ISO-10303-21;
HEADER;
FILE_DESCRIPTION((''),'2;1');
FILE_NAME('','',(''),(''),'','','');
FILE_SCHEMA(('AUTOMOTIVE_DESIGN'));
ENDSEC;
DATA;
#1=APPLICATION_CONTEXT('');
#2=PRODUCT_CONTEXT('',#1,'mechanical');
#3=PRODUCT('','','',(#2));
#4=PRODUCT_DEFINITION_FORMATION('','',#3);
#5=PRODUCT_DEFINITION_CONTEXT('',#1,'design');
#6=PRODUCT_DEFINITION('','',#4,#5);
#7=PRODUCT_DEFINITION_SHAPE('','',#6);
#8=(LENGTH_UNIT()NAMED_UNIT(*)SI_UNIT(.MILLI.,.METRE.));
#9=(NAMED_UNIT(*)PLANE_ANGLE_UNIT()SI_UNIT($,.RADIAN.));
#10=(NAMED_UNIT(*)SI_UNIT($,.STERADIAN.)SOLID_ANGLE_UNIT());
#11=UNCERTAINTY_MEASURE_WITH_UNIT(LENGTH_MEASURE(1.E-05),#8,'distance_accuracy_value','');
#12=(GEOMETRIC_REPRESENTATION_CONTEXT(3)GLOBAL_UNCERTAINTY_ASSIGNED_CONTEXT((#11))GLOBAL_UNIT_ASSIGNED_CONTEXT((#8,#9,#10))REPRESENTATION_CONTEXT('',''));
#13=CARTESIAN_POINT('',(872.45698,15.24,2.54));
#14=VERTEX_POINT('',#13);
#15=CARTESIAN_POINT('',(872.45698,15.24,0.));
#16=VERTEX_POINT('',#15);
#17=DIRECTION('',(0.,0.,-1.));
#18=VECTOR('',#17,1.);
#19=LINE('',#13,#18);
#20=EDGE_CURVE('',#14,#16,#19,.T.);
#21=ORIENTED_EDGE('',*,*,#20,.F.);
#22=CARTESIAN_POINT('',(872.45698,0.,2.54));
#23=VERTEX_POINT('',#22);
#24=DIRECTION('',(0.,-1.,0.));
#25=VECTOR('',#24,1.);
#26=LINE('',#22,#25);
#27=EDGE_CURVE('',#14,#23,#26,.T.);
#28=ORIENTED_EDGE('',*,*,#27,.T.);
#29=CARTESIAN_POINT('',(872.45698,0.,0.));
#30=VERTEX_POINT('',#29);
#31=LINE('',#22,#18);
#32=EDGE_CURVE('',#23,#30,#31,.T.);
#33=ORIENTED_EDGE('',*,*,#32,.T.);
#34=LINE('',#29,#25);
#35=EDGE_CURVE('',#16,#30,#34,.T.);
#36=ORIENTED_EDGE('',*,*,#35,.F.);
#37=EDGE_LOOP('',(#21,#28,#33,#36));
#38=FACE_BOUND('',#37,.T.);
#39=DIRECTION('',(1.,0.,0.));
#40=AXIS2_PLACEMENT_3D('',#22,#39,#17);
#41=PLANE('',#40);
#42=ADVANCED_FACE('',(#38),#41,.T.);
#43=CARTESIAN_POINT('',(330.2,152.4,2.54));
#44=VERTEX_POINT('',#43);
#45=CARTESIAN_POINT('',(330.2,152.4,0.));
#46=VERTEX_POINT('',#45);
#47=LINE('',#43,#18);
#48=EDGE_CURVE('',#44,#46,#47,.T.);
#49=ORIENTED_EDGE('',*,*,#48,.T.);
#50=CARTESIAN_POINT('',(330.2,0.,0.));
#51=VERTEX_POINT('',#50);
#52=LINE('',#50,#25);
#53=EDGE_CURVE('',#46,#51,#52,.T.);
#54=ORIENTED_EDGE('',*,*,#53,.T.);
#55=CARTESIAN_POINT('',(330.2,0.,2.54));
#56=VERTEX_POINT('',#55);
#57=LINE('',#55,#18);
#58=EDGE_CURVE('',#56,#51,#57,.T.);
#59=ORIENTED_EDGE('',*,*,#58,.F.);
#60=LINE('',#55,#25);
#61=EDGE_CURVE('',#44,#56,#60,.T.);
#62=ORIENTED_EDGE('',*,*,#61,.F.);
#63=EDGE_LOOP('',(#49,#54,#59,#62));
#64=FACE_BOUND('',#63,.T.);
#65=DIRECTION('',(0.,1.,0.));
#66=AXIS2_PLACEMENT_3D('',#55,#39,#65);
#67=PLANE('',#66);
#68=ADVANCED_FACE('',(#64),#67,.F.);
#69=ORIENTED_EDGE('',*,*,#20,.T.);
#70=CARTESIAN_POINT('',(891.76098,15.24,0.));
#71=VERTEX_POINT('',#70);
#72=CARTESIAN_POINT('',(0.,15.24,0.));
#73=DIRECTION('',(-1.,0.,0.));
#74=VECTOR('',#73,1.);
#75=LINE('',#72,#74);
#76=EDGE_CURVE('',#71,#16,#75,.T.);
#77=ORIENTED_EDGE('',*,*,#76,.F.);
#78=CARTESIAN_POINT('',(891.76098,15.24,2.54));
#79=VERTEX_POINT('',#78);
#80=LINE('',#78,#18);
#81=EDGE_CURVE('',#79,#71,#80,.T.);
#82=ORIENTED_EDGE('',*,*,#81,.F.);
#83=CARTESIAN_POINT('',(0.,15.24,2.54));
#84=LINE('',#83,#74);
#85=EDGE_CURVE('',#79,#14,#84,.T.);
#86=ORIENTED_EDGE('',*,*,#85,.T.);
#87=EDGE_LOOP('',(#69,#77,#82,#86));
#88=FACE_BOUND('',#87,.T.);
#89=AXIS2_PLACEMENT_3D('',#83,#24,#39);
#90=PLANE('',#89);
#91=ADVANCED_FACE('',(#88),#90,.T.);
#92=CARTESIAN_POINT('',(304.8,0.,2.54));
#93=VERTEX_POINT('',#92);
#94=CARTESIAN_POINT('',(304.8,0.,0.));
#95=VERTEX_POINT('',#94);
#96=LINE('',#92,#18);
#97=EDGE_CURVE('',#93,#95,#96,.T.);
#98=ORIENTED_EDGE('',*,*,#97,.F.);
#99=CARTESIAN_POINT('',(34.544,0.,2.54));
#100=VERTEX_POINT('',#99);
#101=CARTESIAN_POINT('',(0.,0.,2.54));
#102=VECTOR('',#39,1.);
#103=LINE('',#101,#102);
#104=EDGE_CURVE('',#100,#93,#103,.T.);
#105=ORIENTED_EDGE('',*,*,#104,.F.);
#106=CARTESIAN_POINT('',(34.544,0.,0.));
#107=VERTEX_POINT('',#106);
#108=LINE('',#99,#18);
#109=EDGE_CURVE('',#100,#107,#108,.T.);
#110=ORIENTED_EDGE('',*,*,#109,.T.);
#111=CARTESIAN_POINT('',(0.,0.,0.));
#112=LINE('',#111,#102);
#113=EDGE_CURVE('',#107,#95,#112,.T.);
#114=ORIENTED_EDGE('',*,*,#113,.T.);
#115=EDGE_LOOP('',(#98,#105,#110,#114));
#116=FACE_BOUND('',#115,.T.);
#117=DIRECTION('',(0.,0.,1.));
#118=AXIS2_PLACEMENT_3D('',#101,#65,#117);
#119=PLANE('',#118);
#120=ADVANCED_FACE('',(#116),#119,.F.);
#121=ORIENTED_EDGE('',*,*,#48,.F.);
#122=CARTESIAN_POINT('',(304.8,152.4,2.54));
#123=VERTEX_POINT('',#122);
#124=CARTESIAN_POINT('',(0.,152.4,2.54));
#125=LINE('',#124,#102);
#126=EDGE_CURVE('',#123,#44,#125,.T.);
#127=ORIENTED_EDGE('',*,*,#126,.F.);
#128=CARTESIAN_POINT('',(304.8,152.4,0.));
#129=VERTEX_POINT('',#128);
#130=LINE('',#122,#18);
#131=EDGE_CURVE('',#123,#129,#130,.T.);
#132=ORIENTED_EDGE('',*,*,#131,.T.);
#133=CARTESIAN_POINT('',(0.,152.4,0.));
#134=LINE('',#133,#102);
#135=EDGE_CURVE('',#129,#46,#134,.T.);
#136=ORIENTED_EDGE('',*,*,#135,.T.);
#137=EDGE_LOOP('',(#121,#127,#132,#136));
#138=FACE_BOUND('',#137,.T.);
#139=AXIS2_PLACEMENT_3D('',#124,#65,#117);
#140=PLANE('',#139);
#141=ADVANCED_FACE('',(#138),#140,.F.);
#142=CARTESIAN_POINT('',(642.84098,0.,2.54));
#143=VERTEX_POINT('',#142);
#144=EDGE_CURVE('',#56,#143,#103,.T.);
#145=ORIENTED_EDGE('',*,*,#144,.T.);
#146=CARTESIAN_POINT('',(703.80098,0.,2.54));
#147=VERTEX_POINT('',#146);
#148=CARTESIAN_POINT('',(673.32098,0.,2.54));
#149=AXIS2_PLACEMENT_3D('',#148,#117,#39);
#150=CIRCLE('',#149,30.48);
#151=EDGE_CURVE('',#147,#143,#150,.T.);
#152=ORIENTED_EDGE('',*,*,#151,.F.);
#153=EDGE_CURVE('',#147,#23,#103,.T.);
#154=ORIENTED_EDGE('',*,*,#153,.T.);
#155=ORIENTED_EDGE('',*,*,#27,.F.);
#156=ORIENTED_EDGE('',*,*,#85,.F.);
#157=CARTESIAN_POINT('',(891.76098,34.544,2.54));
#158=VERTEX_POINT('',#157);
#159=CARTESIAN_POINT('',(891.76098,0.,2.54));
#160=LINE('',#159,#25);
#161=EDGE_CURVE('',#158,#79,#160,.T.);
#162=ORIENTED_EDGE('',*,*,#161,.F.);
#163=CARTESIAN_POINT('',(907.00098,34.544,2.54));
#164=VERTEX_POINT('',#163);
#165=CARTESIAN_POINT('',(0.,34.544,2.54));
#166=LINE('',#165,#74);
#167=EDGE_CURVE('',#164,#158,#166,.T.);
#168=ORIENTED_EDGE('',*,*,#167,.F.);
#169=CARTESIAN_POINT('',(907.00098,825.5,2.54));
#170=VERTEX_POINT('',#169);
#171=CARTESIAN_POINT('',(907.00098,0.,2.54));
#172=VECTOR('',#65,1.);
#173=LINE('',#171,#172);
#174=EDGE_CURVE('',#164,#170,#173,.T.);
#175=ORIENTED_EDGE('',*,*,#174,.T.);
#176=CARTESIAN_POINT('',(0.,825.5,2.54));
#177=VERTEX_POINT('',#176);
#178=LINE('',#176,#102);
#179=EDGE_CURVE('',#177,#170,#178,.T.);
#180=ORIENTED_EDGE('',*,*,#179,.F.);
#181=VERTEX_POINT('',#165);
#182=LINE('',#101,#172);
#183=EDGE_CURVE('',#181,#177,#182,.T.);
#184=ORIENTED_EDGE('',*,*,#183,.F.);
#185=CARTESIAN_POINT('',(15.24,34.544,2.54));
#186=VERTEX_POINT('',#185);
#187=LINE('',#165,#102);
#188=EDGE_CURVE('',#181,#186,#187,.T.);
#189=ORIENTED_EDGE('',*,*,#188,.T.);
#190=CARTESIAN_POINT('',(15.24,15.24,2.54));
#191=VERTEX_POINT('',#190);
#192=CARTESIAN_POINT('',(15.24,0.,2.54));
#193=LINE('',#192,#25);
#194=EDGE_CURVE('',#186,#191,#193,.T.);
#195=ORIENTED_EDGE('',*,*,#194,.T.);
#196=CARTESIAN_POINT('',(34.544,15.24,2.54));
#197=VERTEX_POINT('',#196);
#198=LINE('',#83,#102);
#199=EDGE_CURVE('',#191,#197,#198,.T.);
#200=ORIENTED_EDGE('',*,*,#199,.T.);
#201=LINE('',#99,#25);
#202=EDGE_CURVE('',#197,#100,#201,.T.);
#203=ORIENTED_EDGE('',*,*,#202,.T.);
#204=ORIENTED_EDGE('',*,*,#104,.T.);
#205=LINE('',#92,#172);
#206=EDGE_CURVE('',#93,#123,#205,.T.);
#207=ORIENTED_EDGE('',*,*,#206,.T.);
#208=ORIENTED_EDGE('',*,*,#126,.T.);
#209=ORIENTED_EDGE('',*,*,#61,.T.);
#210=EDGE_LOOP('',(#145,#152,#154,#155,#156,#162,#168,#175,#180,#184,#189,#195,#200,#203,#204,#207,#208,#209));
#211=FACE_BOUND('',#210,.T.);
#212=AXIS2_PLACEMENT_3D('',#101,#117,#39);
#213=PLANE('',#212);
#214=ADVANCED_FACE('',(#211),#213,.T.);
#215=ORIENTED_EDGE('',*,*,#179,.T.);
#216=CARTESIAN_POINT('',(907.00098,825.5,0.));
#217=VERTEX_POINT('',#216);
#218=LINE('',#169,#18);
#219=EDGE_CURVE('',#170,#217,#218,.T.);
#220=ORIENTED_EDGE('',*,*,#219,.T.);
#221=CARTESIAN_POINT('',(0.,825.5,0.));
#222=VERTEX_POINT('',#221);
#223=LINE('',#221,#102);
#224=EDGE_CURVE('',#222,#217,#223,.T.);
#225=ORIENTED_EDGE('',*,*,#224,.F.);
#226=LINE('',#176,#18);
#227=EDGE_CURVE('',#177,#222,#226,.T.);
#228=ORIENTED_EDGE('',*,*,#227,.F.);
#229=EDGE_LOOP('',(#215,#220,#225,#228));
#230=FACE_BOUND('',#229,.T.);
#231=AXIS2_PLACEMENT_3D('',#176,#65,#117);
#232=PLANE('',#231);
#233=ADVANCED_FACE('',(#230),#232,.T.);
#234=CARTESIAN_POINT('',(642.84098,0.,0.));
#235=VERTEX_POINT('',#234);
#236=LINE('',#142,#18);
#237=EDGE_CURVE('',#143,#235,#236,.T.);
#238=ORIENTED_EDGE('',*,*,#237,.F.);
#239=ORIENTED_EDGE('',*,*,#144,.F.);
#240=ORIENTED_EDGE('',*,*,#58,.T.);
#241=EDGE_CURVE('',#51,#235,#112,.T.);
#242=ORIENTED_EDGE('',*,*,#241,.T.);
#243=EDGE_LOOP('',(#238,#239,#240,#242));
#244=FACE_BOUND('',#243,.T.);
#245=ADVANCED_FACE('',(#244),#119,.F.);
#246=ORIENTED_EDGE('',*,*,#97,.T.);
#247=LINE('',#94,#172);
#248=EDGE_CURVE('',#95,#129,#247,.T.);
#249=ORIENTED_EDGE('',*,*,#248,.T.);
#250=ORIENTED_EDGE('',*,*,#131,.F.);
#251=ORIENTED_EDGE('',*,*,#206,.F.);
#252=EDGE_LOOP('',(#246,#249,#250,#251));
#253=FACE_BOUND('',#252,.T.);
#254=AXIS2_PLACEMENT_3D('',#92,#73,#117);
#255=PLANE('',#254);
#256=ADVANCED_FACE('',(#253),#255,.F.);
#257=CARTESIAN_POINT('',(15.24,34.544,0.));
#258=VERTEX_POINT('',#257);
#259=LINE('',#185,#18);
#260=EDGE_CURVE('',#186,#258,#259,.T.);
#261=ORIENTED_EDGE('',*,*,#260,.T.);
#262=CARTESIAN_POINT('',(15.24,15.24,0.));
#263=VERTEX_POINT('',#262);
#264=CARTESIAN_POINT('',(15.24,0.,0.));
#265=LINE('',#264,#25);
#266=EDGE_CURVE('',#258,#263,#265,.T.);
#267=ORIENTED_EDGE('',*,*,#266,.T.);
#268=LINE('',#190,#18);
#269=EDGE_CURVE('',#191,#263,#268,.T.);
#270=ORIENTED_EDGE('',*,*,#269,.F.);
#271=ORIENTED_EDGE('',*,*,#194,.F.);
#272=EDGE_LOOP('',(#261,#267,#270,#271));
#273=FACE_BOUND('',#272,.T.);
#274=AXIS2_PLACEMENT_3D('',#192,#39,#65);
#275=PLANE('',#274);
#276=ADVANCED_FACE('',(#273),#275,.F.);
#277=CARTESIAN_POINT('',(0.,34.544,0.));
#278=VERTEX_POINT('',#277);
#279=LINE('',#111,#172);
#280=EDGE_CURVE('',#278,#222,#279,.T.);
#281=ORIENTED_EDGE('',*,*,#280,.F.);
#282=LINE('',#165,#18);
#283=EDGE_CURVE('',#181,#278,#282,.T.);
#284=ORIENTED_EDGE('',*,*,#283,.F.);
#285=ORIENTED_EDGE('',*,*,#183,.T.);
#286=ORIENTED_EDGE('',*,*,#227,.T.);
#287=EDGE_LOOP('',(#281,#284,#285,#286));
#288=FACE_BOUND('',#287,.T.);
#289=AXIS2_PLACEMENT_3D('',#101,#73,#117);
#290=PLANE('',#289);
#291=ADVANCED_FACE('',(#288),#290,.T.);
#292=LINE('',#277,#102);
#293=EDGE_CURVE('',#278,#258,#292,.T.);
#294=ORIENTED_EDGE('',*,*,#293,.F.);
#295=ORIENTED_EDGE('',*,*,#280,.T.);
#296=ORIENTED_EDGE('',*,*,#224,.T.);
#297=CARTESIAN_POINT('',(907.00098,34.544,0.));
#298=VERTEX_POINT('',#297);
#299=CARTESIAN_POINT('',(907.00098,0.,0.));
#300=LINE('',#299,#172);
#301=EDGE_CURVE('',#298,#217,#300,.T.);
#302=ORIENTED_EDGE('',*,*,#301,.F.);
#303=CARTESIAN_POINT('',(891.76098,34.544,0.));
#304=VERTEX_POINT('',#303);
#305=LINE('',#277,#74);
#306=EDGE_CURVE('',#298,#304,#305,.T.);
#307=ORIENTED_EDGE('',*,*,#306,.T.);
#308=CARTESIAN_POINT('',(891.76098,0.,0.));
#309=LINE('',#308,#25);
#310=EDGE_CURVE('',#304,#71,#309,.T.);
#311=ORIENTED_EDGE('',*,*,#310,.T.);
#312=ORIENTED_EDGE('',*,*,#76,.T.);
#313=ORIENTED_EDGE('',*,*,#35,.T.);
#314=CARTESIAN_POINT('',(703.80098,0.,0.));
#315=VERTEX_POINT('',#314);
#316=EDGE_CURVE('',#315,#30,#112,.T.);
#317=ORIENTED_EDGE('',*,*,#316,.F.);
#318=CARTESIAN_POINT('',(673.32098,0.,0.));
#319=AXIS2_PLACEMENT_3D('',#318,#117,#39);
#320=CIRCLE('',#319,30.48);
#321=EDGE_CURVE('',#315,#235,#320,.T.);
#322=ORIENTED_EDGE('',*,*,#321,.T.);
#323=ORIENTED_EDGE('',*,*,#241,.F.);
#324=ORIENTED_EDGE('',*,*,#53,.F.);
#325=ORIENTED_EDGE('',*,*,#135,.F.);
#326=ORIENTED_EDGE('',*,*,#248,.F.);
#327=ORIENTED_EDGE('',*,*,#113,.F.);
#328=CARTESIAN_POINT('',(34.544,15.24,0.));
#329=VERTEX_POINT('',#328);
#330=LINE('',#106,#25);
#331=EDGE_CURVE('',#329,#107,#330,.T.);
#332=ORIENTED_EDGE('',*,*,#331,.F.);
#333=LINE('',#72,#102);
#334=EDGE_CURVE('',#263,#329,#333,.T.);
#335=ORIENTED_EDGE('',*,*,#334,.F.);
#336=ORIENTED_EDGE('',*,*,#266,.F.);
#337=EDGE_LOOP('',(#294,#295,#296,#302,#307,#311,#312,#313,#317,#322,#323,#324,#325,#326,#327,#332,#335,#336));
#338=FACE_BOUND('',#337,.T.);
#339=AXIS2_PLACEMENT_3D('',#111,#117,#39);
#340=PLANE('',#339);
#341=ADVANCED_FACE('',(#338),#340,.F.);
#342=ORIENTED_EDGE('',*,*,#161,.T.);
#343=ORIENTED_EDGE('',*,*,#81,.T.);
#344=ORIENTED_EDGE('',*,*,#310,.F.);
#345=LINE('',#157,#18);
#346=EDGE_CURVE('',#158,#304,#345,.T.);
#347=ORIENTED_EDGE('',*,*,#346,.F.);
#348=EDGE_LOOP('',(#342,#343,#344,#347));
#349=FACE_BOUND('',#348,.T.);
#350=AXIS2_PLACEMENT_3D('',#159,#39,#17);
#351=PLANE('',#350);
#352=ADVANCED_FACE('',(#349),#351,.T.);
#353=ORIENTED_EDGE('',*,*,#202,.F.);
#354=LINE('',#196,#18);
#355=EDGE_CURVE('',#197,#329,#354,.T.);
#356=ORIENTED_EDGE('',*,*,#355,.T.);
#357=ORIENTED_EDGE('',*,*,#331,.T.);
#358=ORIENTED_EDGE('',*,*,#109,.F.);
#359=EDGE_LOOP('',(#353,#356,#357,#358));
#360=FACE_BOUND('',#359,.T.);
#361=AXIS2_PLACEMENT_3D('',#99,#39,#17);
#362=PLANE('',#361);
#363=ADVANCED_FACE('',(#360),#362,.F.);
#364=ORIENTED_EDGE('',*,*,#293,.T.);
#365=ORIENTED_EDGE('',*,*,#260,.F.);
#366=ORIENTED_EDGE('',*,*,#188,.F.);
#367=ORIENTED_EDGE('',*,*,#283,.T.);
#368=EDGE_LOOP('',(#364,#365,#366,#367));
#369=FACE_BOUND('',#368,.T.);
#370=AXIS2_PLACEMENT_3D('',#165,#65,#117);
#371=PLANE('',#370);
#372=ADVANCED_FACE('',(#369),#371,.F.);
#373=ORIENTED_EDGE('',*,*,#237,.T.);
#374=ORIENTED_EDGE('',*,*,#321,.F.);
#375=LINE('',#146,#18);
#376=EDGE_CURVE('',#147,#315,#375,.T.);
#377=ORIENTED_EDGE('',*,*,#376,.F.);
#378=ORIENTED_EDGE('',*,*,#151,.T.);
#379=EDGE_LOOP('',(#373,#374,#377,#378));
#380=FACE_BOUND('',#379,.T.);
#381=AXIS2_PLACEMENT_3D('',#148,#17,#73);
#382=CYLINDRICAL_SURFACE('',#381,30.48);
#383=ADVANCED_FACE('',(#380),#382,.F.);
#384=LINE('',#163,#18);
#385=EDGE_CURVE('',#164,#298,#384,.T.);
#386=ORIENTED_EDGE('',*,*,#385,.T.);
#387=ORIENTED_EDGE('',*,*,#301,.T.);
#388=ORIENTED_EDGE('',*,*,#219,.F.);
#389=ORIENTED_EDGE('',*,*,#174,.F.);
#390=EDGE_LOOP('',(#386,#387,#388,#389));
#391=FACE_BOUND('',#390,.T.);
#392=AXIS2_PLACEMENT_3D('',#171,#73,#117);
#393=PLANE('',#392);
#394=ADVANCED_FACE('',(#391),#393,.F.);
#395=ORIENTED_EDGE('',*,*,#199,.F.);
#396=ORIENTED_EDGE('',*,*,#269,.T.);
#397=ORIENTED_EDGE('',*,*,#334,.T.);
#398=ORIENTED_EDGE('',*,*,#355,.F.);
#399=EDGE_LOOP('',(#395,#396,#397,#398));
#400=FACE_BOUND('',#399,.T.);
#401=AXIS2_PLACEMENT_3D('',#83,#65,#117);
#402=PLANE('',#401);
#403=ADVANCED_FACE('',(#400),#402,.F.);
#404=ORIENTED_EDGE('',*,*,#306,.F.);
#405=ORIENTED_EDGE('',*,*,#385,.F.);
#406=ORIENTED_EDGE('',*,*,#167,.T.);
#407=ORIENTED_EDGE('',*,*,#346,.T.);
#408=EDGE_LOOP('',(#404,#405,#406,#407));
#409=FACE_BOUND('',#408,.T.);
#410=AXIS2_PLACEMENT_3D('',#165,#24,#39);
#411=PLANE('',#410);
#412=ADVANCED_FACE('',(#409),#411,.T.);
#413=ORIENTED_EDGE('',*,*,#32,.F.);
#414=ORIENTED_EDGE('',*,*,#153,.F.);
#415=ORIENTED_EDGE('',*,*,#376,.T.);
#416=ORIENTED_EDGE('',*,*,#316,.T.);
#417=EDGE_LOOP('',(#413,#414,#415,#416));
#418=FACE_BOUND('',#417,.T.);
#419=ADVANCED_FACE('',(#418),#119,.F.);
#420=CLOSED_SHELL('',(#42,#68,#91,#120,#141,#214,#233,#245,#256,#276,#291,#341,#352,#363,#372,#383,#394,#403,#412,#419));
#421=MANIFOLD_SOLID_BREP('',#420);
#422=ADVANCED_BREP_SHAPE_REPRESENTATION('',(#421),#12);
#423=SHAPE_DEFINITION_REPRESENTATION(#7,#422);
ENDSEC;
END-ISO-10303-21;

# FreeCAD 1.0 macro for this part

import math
import FreeCAD as App
import Part
import Sketcher
Q = App.Units.Quantity

doc = App.newDocument("Part")
params = doc.addObject("Spreadsheet::Sheet", "Params")
for row, (alias, value) in enumerate([
    ("sketch1_radius", "1.2 in"),
    ("sketch1_width", "1 in"),
    ("sketch1_height", "6 in"),
    ("sketch1_width2", "0.6 in"),
    ("sketch1_width3", "0.76 in"),
    ("pad1_length", "0.1 in"),
], start=1):
    params.set(f"A{row}", alias)
    params.set(f"B{row}", "=" + value)
    params.setAlias(f"B{row}", alias)

body = doc.addObject("PartDesign::Body", "Body")

sketch1 = doc.addObject("Sketcher::SketchObject", "Sketch")
body.addObject(sketch1)
sketch1.AttachmentSupport = (doc.XY_Plane, [""])
sketch1.MapMode = "FlatFace"
sketch1.addGeometry([
    Part.LineSegment(App.Vector(0, 826, 0), App.Vector(0, 35, 0)),
    Part.LineSegment(App.Vector(0, 35, 0), App.Vector(15, 35, 0)),
    Part.LineSegment(App.Vector(15, 35, 0), App.Vector(15, 15, 0)),
    Part.LineSegment(App.Vector(15, 15, 0), App.Vector(35, 15, 0)),
    Part.LineSegment(App.Vector(35, 15, 0), App.Vector(35, 0, 0)),
    Part.LineSegment(App.Vector(35, 0, 0), App.Vector(305, 0, 0)),
    Part.LineSegment(App.Vector(305, 0, 0), App.Vector(305, 152, 0)),
    Part.LineSegment(App.Vector(305, 152, 0), App.Vector(330, 152, 0)),
    Part.LineSegment(App.Vector(330, 152, 0), App.Vector(330, 0, 0)),
    Part.LineSegment(App.Vector(330, 0, 0), App.Vector(643, 0, 0)),
    Part.ArcOfCircle(Part.Circle(App.Vector(673, 0, 0), App.Vector(0, 0, 1), 30), math.radians(0), math.radians(180)),
    Part.LineSegment(App.Vector(704, 0, 0), App.Vector(872, 0, 0)),
    Part.LineSegment(App.Vector(872, 0, 0), App.Vector(872, 15, 0)),
    Part.LineSegment(App.Vector(872, 15, 0), App.Vector(892, 15, 0)),
    Part.LineSegment(App.Vector(892, 15, 0), App.Vector(892, 35, 0)),
    Part.LineSegment(App.Vector(892, 35, 0), App.Vector(907, 35, 0)),
    Part.LineSegment(App.Vector(907, 35, 0), App.Vector(907, 826, 0)),
    Part.LineSegment(App.Vector(907, 826, 0), App.Vector(0, 826, 0)),
], False)
sketch1.addConstraint([
    Sketcher.Constraint("Coincident", 0, 2, 1, 1),
    Sketcher.Constraint("Coincident", 1, 2, 2, 1),
    Sketcher.Constraint("Coincident", 2, 2, 3, 1),
    Sketcher.Constraint("Coincident", 3, 2, 4, 1),
    Sketcher.Constraint("Coincident", 4, 2, 5, 1),
    Sketcher.Constraint("Coincident", 5, 2, 6, 1),
    Sketcher.Constraint("Coincident", 6, 2, 7, 1),
    Sketcher.Constraint("Coincident", 7, 2, 8, 1),
    Sketcher.Constraint("Coincident", 8, 2, 9, 1),
    Sketcher.Constraint("Coincident", 9, 2, 10, 2),
    Sketcher.Constraint("Coincident", 10, 1, 11, 1),
    Sketcher.Constraint("Coincident", 11, 2, 12, 1),
    Sketcher.Constraint("Coincident", 12, 2, 13, 1),
    Sketcher.Constraint("Coincident", 13, 2, 14, 1),
    Sketcher.Constraint("Coincident", 14, 2, 15, 1),
    Sketcher.Constraint("Coincident", 15, 2, 16, 1),
    Sketcher.Constraint("Coincident", 16, 2, 17, 1),
    Sketcher.Constraint("Coincident", 17, 2, 0, 1),
    Sketcher.Constraint("Vertical", 0),
    Sketcher.Constraint("Horizontal", 1),
    Sketcher.Constraint("Vertical", 2),
    Sketcher.Constraint("Horizontal", 3),
    Sketcher.Constraint("Vertical", 4),
    Sketcher.Constraint("Horizontal", 5),
    Sketcher.Constraint("Vertical", 6),
    Sketcher.Constraint("Horizontal", 7),
    Sketcher.Constraint("Vertical", 8),
    Sketcher.Constraint("Horizontal", 9),
    Sketcher.Constraint("Horizontal", 11),
    Sketcher.Constraint("Vertical", 12),
    Sketcher.Constraint("Horizontal", 13),
    Sketcher.Constraint("Vertical", 14),
    Sketcher.Constraint("Horizontal", 15),
    Sketcher.Constraint("Vertical", 16),
    Sketcher.Constraint("Horizontal", 17),
    Sketcher.Constraint("PointOnObject", 10, 3, -1),
    Sketcher.Constraint("PointOnObject", 0, 2, -2),
    Sketcher.Constraint("PointOnObject", 4, 2, -1),
    Sketcher.Constraint("PointOnObject", 8, 2, -1),
    Sketcher.Constraint("PointOnObject", 10, 1, -1),
    Sketcher.Constraint("Horizontal", 3, 2, 12, 2),
    Sketcher.Constraint("Horizontal", 1, 2, 14, 2),
    Sketcher.Constraint("Equal", 3, 13),
    Sketcher.Constraint("Equal", 1, 15),
    Sketcher.Constraint("Equal", 13, 2),
    Sketcher.Constraint("Equal", 15, 4),
    Sketcher.Constraint("Radius", 10, Q("1.2 in")),
    Sketcher.Constraint("DistanceX", 7, 1, 7, 2, Q("1 in")),
    Sketcher.Constraint("DistanceY", 6, 1, 6, 2, Q("6 in")),
    Sketcher.Constraint("DistanceX", 1, 1, 1, 2, Q("0.6 in")),
    Sketcher.Constraint("DistanceX", -1, 1, 5, 2, Q("12 in")),
    Sketcher.Constraint("DistanceX", 10, 1, 15, 2, Q("8 in")),
    Sketcher.Constraint("DistanceX", 3, 1, 3, 2, Q("0.76 in")),
    Sketcher.Constraint("DistanceY", 0, 2, 0, 1, Q("31.14 in")),
    Sketcher.Constraint("DistanceX", 9, 1, 9, 2, Q("12.3087 in")),
])
sketch1.setExpression("Constraints[46]", "Params.sketch1_radius")
sketch1.setExpression("Constraints[47]", "Params.sketch1_width")
sketch1.setExpression("Constraints[48]", "Params.sketch1_height")
sketch1.setExpression("Constraints[49]", "Params.sketch1_width2")
sketch1.setExpression("Constraints[52]", "Params.sketch1_width3")
pad1 = doc.addObject("PartDesign::Pad", "Pad")
body.addObject(pad1)
pad1.Profile = sketch1
pad1.setExpression("Length", "Params.pad1_length")

doc.recompute()
